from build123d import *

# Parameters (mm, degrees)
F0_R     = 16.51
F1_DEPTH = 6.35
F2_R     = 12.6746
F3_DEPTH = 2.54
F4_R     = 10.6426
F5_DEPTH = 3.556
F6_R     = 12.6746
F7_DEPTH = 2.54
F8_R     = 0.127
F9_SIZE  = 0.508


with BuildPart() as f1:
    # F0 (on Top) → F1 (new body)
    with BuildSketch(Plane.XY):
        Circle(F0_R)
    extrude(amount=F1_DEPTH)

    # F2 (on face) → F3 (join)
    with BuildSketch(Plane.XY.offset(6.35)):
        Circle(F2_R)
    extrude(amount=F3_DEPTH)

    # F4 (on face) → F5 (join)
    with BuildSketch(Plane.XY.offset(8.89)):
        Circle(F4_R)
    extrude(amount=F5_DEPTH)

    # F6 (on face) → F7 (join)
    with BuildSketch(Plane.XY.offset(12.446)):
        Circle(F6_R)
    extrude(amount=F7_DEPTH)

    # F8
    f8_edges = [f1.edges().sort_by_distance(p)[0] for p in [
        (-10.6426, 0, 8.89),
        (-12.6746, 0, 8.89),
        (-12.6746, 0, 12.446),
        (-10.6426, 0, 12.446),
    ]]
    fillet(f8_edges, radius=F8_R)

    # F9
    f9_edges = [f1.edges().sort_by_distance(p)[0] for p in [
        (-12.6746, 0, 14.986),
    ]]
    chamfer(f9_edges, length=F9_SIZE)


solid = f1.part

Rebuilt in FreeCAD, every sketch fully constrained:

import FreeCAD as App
import Part
import Sketcher

V = App.Vector
Q = App.Units.Quantity


def edges_at(feature, points):
    """Names of the edges that pass closest to the given points."""
    edges = feature.Shape.Edges
    near = lambda p: min(range(len(edges)), key=lambda i: edges[i].distToShape(Part.Vertex(*p))[0])
    return sorted({f"Edge{near(p) + 1}" for p in points})

doc = App.newDocument("Part")
params = doc.addObject("Spreadsheet::Sheet", "Params")
for row, (alias, value) in enumerate([
    ("sketch1_diameter", "1.3 in"),
    ("pad1_length", "0.25 in"),
    ("sketch2_diameter", "0.998 in"),
    ("pad2_length", "0.1 in"),
    ("sketch3_diameter", "0.838 in"),
    ("pad3_length", "0.14 in"),
    ("sketch4_diameter", "0.998 in"),
    ("pad4_length", "0.1 in"),
    ("fillet_radius", "0.005 in"),
    ("chamfer_size", "0.02 in"),
], start=1):
    params.set(f"A{row}", alias)
    params.set(f"B{row}", "=" + value)
    params.setAlias(f"B{row}", alias)

body = doc.addObject("PartDesign::Body", "Body")

sketch1 = doc.addObject("Sketcher::SketchObject", "Sketch")
body.addObject(sketch1)
sketch1.AttachmentSupport = (doc.XY_Plane, [""])
sketch1.MapMode = "FlatFace"
sketch1.addGeometry(Part.Circle(V(0, 0, 0), V(0, 0, 1), 17), False)
sketch1.addConstraint([
    Sketcher.Constraint("Coincident", 0, 3, -1, 1),
    Sketcher.Constraint("Diameter", 0, Q("1.3 in")),
])
sketch1.setExpression("Constraints[1]", "Params.sketch1_diameter")
pad1 = doc.addObject("PartDesign::Pad", "Pad")
body.addObject(pad1)
pad1.Profile = sketch1
pad1.setExpression("Length", "Params.pad1_length")

sketch2 = doc.addObject("Sketcher::SketchObject", "Sketch001")
body.addObject(sketch2)
sketch2.AttachmentSupport = (doc.XY_Plane, [""])
sketch2.MapMode = "FlatFace"
sketch2.AttachmentOffset = App.Placement(V(0, 0, 0.25 * 25.4), App.Rotation())
sketch2.addGeometry(Part.Circle(V(0, 0, 0), V(0, 0, 1), 13), False)
sketch2.addConstraint([
    Sketcher.Constraint("Coincident", 0, 3, -1, 1),
    Sketcher.Constraint("Diameter", 0, Q("0.998 in")),
])
sketch2.setExpression("Constraints[1]", "Params.sketch2_diameter")
pad2 = doc.addObject("PartDesign::Pad", "Pad001")
body.addObject(pad2)
pad2.Profile = sketch2
pad2.setExpression("Length", "Params.pad2_length")

sketch3 = doc.addObject("Sketcher::SketchObject", "Sketch002")
body.addObject(sketch3)
sketch3.AttachmentSupport = (doc.XY_Plane, [""])
sketch3.MapMode = "FlatFace"
sketch3.AttachmentOffset = App.Placement(V(0, 0, 0.35 * 25.4), App.Rotation())
sketch3.addGeometry(Part.Circle(V(0, 0, 0), V(0, 0, 1), 11), False)
sketch3.addConstraint([
    Sketcher.Constraint("Coincident", 0, 3, -1, 1),
    Sketcher.Constraint("Diameter", 0, Q("0.838 in")),
])
sketch3.setExpression("Constraints[1]", "Params.sketch3_diameter")
pad3 = doc.addObject("PartDesign::Pad", "Pad002")
body.addObject(pad3)
pad3.Profile = sketch3
pad3.setExpression("Length", "Params.pad3_length")

sketch4 = doc.addObject("Sketcher::SketchObject", "Sketch003")
body.addObject(sketch4)
sketch4.AttachmentSupport = (doc.XY_Plane, [""])
sketch4.MapMode = "FlatFace"
sketch4.AttachmentOffset = App.Placement(V(0, 0, 0.49 * 25.4), App.Rotation())
sketch4.addGeometry(Part.Circle(V(0, 0, 0), V(0, 0, 1), 13), False)
sketch4.addConstraint([
    Sketcher.Constraint("Coincident", 0, 3, -1, 1),
    Sketcher.Constraint("Diameter", 0, Q("0.998 in")),
])
sketch4.setExpression("Constraints[1]", "Params.sketch4_diameter")
pad4 = doc.addObject("PartDesign::Pad", "Pad003")
body.addObject(pad4)
pad4.Profile = sketch4
pad4.setExpression("Length", "Params.pad4_length")
doc.recompute()

fillet = doc.addObject("PartDesign::Fillet", "Fillet")
body.addObject(fillet)
fillet.Base = (pad4, edges_at(pad4, [
    (-10.643, 0, 8.89),
    (-12.675, 0, 8.89),
    (-12.675, 0, 12.446),
    (-10.643, 0, 12.446),
]))
fillet.setExpression("Radius", "Params.fillet_radius")
doc.recompute()

chamfer = doc.addObject("PartDesign::Chamfer", "Chamfer")
body.addObject(chamfer)
chamfer.Base = (fillet, edges_at(fillet, [(-12.675, 0, 14.986)]))
chamfer.setExpression("Size", "Params.chamfer_size")

doc.recompute()
